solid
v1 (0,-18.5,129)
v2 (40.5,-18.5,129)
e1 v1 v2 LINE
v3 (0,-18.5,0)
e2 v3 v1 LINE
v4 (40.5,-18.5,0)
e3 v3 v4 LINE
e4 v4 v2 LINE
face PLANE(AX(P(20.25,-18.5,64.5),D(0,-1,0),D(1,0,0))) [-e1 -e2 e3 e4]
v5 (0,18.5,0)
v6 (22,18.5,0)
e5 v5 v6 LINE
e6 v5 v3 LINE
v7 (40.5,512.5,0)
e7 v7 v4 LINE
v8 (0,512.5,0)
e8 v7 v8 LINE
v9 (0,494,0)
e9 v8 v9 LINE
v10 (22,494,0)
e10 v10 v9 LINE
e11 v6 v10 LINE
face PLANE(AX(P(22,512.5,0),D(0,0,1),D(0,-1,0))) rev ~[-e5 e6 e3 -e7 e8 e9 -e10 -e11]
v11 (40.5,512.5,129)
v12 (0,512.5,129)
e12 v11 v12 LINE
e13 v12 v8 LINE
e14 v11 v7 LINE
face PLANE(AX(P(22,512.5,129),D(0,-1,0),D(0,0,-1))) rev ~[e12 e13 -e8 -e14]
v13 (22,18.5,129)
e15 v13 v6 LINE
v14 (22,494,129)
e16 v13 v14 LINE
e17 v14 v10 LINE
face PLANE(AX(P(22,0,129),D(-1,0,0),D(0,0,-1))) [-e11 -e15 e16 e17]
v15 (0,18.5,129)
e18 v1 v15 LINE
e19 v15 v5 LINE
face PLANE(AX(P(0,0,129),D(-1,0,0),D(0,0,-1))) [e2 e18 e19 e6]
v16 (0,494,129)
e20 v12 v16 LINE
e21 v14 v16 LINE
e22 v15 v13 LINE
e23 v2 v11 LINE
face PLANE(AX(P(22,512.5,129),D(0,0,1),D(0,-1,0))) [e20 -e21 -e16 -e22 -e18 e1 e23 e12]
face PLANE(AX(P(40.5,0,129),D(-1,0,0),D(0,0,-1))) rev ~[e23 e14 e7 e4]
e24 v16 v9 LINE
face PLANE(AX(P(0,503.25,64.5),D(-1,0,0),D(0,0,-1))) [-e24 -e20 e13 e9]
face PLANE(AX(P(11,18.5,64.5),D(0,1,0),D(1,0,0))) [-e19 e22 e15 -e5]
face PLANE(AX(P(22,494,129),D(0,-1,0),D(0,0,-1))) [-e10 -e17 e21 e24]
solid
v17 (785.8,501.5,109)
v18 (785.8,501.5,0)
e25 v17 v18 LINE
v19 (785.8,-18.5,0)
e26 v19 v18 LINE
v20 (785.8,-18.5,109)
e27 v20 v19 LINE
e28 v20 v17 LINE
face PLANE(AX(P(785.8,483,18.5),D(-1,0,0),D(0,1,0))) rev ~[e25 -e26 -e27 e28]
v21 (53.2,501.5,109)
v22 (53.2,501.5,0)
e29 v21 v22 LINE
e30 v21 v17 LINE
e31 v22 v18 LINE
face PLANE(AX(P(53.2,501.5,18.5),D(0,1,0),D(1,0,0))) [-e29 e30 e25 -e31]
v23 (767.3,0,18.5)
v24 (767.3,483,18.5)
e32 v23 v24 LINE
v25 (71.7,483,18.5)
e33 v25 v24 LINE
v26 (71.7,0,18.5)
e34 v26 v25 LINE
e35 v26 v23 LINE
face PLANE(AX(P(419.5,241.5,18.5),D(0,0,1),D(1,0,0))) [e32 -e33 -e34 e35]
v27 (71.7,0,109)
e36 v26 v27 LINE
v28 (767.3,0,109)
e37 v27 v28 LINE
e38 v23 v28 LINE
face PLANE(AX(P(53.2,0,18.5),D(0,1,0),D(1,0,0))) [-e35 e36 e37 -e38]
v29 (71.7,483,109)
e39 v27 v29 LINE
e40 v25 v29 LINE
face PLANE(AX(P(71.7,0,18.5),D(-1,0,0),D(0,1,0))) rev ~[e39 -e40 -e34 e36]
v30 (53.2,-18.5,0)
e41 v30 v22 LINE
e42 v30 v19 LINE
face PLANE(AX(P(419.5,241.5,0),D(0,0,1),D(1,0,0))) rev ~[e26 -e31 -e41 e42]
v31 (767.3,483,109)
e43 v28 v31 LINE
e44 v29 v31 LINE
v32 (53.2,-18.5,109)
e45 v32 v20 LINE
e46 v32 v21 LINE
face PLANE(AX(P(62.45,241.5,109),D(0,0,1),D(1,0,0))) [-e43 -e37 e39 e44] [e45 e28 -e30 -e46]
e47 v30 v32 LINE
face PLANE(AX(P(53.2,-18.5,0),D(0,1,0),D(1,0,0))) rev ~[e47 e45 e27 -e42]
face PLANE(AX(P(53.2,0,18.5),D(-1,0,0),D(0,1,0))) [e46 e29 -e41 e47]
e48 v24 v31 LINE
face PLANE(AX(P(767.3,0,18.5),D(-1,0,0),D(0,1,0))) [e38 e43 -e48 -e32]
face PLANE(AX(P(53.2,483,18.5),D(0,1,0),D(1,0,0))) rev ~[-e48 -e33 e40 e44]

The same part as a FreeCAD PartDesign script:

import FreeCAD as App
import Part
import Sketcher

V = App.Vector
Q = App.Units.Quantity

doc = App.newDocument("Part")
body = doc.addObject("PartDesign::Body", "Body")

# Sketch on XZ plane
sketch1 = body.newObject("Sketcher::SketchObject", "Sketch")
sketch1.AttachmentSupport = (doc.getObject("XZ_Plane"), [""])
sketch1.MapMode = "FlatFace"
sketch1.addGeometry([
    Part.LineSegment(V(0, 129, 0), V(0, 0, 0)),
    Part.LineSegment(V(0, 0, 0), V(40.5, 0, 0)),
    Part.LineSegment(V(40.5, 0, 0), V(40.5, 129, 0)),
    Part.LineSegment(V(40.5, 129, 0), V(0, 129, 0)),
], False)
sketch1.addConstraint([
    Sketcher.Constraint("Coincident", 0, 2, 1, 1),
    Sketcher.Constraint("Coincident", 1, 2, 2, 1),
    Sketcher.Constraint("Coincident", 2, 2, 3, 1),
    Sketcher.Constraint("Coincident", 3, 2, 0, 1),
    Sketcher.Constraint("Vertical", 0),
    Sketcher.Constraint("Horizontal", 1),
    Sketcher.Constraint("Vertical", 2),
    Sketcher.Constraint("Horizontal", 3),
    Sketcher.Constraint("Coincident", 0, 2, -1, 1),
    Sketcher.Constraint("DistanceY", 0, 2, 0, 1, Q("129 mm")),
    Sketcher.Constraint("DistanceX", 1, 1, 1, 2, Q("40.5 mm")),
])
pad1 = body.newObject("PartDesign::Pad", "Pad")
pad1.Profile = sketch1
pad1.Length = 18.5

# Sketch on XZ plane
sketch2 = body.newObject("Sketcher::SketchObject", "Sketch001")
sketch2.AttachmentSupport = (doc.getObject("XZ_Plane"), [""])
sketch2.MapMode = "FlatFace"
sketch2.addGeometry([
    Part.LineSegment(V(0, 0, 0), V(0, 129, 0)),
    Part.LineSegment(V(0, 129, 0), V(22, 129, 0)),
    Part.LineSegment(V(22, 129, 0), V(22, 0, 0)),
    Part.LineSegment(V(22, 0, 0), V(0, 0, 0)),
], False)
sketch2.addConstraint([
    Sketcher.Constraint("Coincident", 0, 2, 1, 1),
    Sketcher.Constraint("Coincident", 1, 2, 2, 1),
    Sketcher.Constraint("Coincident", 2, 2, 3, 1),
    Sketcher.Constraint("Coincident", 3, 2, 0, 1),
    Sketcher.Constraint("Vertical", 0),
    Sketcher.Constraint("Horizontal", 1),
    Sketcher.Constraint("Vertical", 2),
    Sketcher.Constraint("Horizontal", 3),
    Sketcher.Constraint("Coincident", 3, 2, -1, 1),
    Sketcher.Constraint("DistanceX", 1, 1, 1, 2, Q("22 mm")),
    Sketcher.Constraint("DistanceY", 0, 1, 0, 2, Q("129 mm")),
])
pad2 = body.newObject("PartDesign::Pad", "Pad001")
pad2.Profile = sketch2
pad2.Length = 18.5
pad2.Reversed = True

# Sketch on XZ plane
sketch3 = body.newObject("Sketcher::SketchObject", "Sketch002")
sketch3.AttachmentSupport = (doc.getObject("XZ_Plane"), [""])
sketch3.MapMode = "FlatFace"
sketch3.addGeometry([
    Part.LineSegment(V(22, 0, 0), V(22, 129, 0)),
    Part.LineSegment(V(22, 129, 0), V(40.5, 129, 0)),
    Part.LineSegment(V(40.5, 129, 0), V(40.5, 0, 0)),
    Part.LineSegment(V(40.5, 0, 0), V(22, 0, 0)),
], False)
sketch3.addConstraint([
    Sketcher.Constraint("Coincident", 0, 2, 1, 1),
    Sketcher.Constraint("Coincident", 1, 2, 2, 1),
    Sketcher.Constraint("Coincident", 2, 2, 3, 1),
    Sketcher.Constraint("Coincident", 3, 2, 0, 1),
    Sketcher.Constraint("Vertical", 0),
    Sketcher.Constraint("Horizontal", 1),
    Sketcher.Constraint("Vertical", 2),
    Sketcher.Constraint("Horizontal", 3),
    Sketcher.Constraint("PointOnObject", 2, 2, -1),
    Sketcher.Constraint("DistanceY", 0, 1, 0, 2, Q("129 mm")),
    Sketcher.Constraint("DistanceX", 1, 1, 1, 2, Q("18.5 mm")),
    Sketcher.Constraint("DistanceX", -1, 1, 0, 2, Q("22 mm")),
])
pad3 = body.newObject("PartDesign::Pad", "Pad002")
pad3.Profile = sketch3
pad3.Length = 512.5
pad3.Reversed = True

# Sketch on YZ plane
sketch4 = body.newObject("Sketcher::SketchObject", "Sketch003")
sketch4.AttachmentSupport = (doc.getObject("YZ_Plane"), [""])
sketch4.MapMode = "FlatFace"
sketch4.AttachmentOffset = App.Placement(V(0, 0, 22), App.Rotation())
sketch4.addGeometry([
    Part.LineSegment(V(494, 129, 0), V(512.5, 129, 0)),
    Part.LineSegment(V(512.5, 129, 0), V(512.5, 0, 0)),
    Part.LineSegment(V(512.5, 0, 0), V(494, 0, 0)),
    Part.LineSegment(V(494, 0, 0), V(494, 129, 0)),
], False)
sketch4.addConstraint([
    Sketcher.Constraint("Coincident", 0, 2, 1, 1),
    Sketcher.Constraint("Coincident", 1, 2, 2, 1),
    Sketcher.Constraint("Coincident", 2, 2, 3, 1),
    Sketcher.Constraint("Coincident", 3, 2, 0, 1),
    Sketcher.Constraint("Horizontal", 0),
    Sketcher.Constraint("Vertical", 1),
    Sketcher.Constraint("Horizontal", 2),
    Sketcher.Constraint("Vertical", 3),
    Sketcher.Constraint("PointOnObject", 1, 2, -1),
    Sketcher.Constraint("DistanceY", 1, 2, 1, 1, Q("129 mm")),
    Sketcher.Constraint("DistanceX", 0, 1, 0, 2, Q("18.5 mm")),
    Sketcher.Constraint("DistanceX", -1, 1, 2, 2, Q("494 mm")),
])
pad4 = body.newObject("PartDesign::Pad", "Pad003")
pad4.Profile = sketch4
pad4.Length = 22
pad4.Reversed = True
body2 = doc.addObject("PartDesign::Body", "Body001")

# Sketch on XY plane
sketch5 = body2.newObject("Sketcher::SketchObject", "Sketch004")
sketch5.AttachmentSupport = (doc.getObject("XY_Plane001"), [""])
sketch5.MapMode = "FlatFace"
sketch5.addGeometry([
    Part.LineSegment(V(53.2, 501.5, 0), V(53.2, -18.5, 0)),
    Part.LineSegment(V(53.2, -18.5, 0), V(785.8, -18.5, 0)),
    Part.LineSegment(V(785.8, -18.5, 0), V(785.8, 501.5, 0)),
    Part.LineSegment(V(785.8, 501.5, 0), V(53.2, 501.5, 0)),
], False)
sketch5.addConstraint([
    Sketcher.Constraint("Coincident", 0, 2, 1, 1),
    Sketcher.Constraint("Coincident", 1, 2, 2, 1),
    Sketcher.Constraint("Coincident", 2, 2, 3, 1),
    Sketcher.Constraint("Coincident", 3, 2, 0, 1),
    Sketcher.Constraint("Vertical", 0),
    Sketcher.Constraint("Horizontal", 1),
    Sketcher.Constraint("Vertical", 2),
    Sketcher.Constraint("Horizontal", 3),
    Sketcher.Constraint("DistanceY", 0, 2, 0, 1, Q("520 mm")),
    Sketcher.Constraint("DistanceX", 1, 1, 1, 2, Q("732.6 mm")),
    Sketcher.Constraint("DistanceX", -1, 1, 0, 2, Q("53.2 mm")),
    Sketcher.Constraint("DistanceY", 0, 2, -1, 1, Q("18.5 mm")),
])
pad5 = body2.newObject("PartDesign::Pad", "Pad004")
pad5.Profile = sketch5
pad5.Length = 18.5

# Sketch on XY plane
sketch6 = body2.newObject("Sketcher::SketchObject", "Sketch005")
sketch6.AttachmentSupport = (doc.getObject("XY_Plane001"), [""])
sketch6.MapMode = "FlatFace"
sketch6.AttachmentOffset = App.Placement(V(0, 0, 18.5), App.Rotation())
sketch6.addGeometry([
    Part.LineSegment(V(53.2, 501.5, 0), V(53.2, 483, 0)),  # 0
    Part.LineSegment(V(53.2, 483, 0), V(785.8, 483, 0)),  # 1
    Part.LineSegment(V(785.8, 483, 0), V(785.8, 501.5, 0)),  # 2
    Part.LineSegment(V(785.8, 501.5, 0), V(53.2, 501.5, 0)),  # 3
    Part.LineSegment(V(53.2, 0, 0), V(53.2, -18.5, 0)),  # 4
    Part.LineSegment(V(53.2, -18.5, 0), V(785.8, -18.5, 0)),  # 5
    Part.LineSegment(V(785.8, -18.5, 0), V(785.8, 0, 0)),  # 6
    Part.LineSegment(V(785.8, 0, 0), V(53.2, 0, 0)),  # 7
], False)
sketch6.addConstraint([
    Sketcher.Constraint("Coincident", 0, 2, 1, 1),
    Sketcher.Constraint("Coincident", 1, 2, 2, 1),
    Sketcher.Constraint("Coincident", 2, 2, 3, 1),
    Sketcher.Constraint("Coincident", 3, 2, 0, 1),
    Sketcher.Constraint("Coincident", 4, 2, 5, 1),
    Sketcher.Constraint("Coincident", 5, 2, 6, 1),
    Sketcher.Constraint("Coincident", 6, 2, 7, 1),
    Sketcher.Constraint("Coincident", 7, 2, 4, 1),
    Sketcher.Constraint("Vertical", 0),
    Sketcher.Constraint("Horizontal", 1),
    Sketcher.Constraint("Vertical", 2),
    Sketcher.Constraint("Horizontal", 3),
    Sketcher.Constraint("Vertical", 4),
    Sketcher.Constraint("Horizontal", 5),
    Sketcher.Constraint("Vertical", 6),
    Sketcher.Constraint("Horizontal", 7),
    Sketcher.Constraint("PointOnObject", 6, 2, -1),
    Sketcher.Constraint("Vertical", 3, 2, 4, 2),
    Sketcher.Constraint("Vertical", 2, 2, 5, 2),
    Sketcher.Constraint("Equal", 2, 4),
    Sketcher.Constraint("DistanceX", 1, 1, 1, 2, Q("732.6 mm")),
    Sketcher.Constraint("DistanceY", 0, 2, 0, 1, Q("18.5 mm")),
    Sketcher.Constraint("DistanceY", -1, 1, 0, 2, Q("483 mm")),
    Sketcher.Constraint("DistanceX", -1, 1, 0, 2, Q("53.2 mm")),
])
pad6 = body2.newObject("PartDesign::Pad", "Pad005")
pad6.Profile = sketch6
pad6.Length = 90.5

# Sketch on XY plane
sketch7 = body2.newObject("Sketcher::SketchObject", "Sketch006")
sketch7.AttachmentSupport = (doc.getObject("XY_Plane001"), [""])
sketch7.MapMode = "FlatFace"
sketch7.AttachmentOffset = App.Placement(V(0, 0, 18.5), App.Rotation())
sketch7.addGeometry([
    Part.LineSegment(V(53.2, 483, 0), V(53.2, 0, 0)),  # 0
    Part.LineSegment(V(53.2, 0, 0), V(71.7, 0, 0)),  # 1
    Part.LineSegment(V(71.7, 0, 0), V(71.7, 483, 0)),  # 2
    Part.LineSegment(V(71.7, 483, 0), V(53.2, 483, 0)),  # 3
    Part.LineSegment(V(767.3, 483, 0), V(767.3, 0, 0)),  # 4
    Part.LineSegment(V(767.3, 0, 0), V(785.8, 0, 0)),  # 5
    Part.LineSegment(V(785.8, 0, 0), V(785.8, 483, 0)),  # 6
    Part.LineSegment(V(785.8, 483, 0), V(767.3, 483, 0)),  # 7
], False)
sketch7.addConstraint([
    Sketcher.Constraint("Coincident", 0, 2, 1, 1),
    Sketcher.Constraint("Coincident", 1, 2, 2, 1),
    Sketcher.Constraint("Coincident", 2, 2, 3, 1),
    Sketcher.Constraint("Coincident", 3, 2, 0, 1),
    Sketcher.Constraint("Coincident", 4, 2, 5, 1),
    Sketcher.Constraint("Coincident", 5, 2, 6, 1),
    Sketcher.Constraint("Coincident", 6, 2, 7, 1),
    Sketcher.Constraint("Coincident", 7, 2, 4, 1),
    Sketcher.Constraint("Vertical", 0),
    Sketcher.Constraint("Horizontal", 1),
    Sketcher.Constraint("Vertical", 2),
    Sketcher.Constraint("Horizontal", 3),
    Sketcher.Constraint("Vertical", 4),
    Sketcher.Constraint("Horizontal", 5),
    Sketcher.Constraint("Vertical", 6),
    Sketcher.Constraint("Horizontal", 7),
    Sketcher.Constraint("PointOnObject", 0, 2, -1),
    Sketcher.Constraint("PointOnObject", 4, 2, -1),
    Sketcher.Constraint("Horizontal", 3, 2, 6, 2),
    Sketcher.Constraint("Equal", 3, 5),
    Sketcher.Constraint("DistanceY", 0, 2, 0, 1, Q("483 mm")),
    Sketcher.Constraint("DistanceX", 1, 1, 1, 2, Q("18.5 mm")),
    Sketcher.Constraint("DistanceX", -1, 1, 0, 2, Q("53.2 mm")),
    Sketcher.Constraint("DistanceX", -1, 1, 4, 2, Q("767.3 mm")),
])
pad7 = body2.newObject("PartDesign::Pad", "Pad006")
pad7.Profile = sketch7
pad7.Length = 90.5

doc.recompute()
